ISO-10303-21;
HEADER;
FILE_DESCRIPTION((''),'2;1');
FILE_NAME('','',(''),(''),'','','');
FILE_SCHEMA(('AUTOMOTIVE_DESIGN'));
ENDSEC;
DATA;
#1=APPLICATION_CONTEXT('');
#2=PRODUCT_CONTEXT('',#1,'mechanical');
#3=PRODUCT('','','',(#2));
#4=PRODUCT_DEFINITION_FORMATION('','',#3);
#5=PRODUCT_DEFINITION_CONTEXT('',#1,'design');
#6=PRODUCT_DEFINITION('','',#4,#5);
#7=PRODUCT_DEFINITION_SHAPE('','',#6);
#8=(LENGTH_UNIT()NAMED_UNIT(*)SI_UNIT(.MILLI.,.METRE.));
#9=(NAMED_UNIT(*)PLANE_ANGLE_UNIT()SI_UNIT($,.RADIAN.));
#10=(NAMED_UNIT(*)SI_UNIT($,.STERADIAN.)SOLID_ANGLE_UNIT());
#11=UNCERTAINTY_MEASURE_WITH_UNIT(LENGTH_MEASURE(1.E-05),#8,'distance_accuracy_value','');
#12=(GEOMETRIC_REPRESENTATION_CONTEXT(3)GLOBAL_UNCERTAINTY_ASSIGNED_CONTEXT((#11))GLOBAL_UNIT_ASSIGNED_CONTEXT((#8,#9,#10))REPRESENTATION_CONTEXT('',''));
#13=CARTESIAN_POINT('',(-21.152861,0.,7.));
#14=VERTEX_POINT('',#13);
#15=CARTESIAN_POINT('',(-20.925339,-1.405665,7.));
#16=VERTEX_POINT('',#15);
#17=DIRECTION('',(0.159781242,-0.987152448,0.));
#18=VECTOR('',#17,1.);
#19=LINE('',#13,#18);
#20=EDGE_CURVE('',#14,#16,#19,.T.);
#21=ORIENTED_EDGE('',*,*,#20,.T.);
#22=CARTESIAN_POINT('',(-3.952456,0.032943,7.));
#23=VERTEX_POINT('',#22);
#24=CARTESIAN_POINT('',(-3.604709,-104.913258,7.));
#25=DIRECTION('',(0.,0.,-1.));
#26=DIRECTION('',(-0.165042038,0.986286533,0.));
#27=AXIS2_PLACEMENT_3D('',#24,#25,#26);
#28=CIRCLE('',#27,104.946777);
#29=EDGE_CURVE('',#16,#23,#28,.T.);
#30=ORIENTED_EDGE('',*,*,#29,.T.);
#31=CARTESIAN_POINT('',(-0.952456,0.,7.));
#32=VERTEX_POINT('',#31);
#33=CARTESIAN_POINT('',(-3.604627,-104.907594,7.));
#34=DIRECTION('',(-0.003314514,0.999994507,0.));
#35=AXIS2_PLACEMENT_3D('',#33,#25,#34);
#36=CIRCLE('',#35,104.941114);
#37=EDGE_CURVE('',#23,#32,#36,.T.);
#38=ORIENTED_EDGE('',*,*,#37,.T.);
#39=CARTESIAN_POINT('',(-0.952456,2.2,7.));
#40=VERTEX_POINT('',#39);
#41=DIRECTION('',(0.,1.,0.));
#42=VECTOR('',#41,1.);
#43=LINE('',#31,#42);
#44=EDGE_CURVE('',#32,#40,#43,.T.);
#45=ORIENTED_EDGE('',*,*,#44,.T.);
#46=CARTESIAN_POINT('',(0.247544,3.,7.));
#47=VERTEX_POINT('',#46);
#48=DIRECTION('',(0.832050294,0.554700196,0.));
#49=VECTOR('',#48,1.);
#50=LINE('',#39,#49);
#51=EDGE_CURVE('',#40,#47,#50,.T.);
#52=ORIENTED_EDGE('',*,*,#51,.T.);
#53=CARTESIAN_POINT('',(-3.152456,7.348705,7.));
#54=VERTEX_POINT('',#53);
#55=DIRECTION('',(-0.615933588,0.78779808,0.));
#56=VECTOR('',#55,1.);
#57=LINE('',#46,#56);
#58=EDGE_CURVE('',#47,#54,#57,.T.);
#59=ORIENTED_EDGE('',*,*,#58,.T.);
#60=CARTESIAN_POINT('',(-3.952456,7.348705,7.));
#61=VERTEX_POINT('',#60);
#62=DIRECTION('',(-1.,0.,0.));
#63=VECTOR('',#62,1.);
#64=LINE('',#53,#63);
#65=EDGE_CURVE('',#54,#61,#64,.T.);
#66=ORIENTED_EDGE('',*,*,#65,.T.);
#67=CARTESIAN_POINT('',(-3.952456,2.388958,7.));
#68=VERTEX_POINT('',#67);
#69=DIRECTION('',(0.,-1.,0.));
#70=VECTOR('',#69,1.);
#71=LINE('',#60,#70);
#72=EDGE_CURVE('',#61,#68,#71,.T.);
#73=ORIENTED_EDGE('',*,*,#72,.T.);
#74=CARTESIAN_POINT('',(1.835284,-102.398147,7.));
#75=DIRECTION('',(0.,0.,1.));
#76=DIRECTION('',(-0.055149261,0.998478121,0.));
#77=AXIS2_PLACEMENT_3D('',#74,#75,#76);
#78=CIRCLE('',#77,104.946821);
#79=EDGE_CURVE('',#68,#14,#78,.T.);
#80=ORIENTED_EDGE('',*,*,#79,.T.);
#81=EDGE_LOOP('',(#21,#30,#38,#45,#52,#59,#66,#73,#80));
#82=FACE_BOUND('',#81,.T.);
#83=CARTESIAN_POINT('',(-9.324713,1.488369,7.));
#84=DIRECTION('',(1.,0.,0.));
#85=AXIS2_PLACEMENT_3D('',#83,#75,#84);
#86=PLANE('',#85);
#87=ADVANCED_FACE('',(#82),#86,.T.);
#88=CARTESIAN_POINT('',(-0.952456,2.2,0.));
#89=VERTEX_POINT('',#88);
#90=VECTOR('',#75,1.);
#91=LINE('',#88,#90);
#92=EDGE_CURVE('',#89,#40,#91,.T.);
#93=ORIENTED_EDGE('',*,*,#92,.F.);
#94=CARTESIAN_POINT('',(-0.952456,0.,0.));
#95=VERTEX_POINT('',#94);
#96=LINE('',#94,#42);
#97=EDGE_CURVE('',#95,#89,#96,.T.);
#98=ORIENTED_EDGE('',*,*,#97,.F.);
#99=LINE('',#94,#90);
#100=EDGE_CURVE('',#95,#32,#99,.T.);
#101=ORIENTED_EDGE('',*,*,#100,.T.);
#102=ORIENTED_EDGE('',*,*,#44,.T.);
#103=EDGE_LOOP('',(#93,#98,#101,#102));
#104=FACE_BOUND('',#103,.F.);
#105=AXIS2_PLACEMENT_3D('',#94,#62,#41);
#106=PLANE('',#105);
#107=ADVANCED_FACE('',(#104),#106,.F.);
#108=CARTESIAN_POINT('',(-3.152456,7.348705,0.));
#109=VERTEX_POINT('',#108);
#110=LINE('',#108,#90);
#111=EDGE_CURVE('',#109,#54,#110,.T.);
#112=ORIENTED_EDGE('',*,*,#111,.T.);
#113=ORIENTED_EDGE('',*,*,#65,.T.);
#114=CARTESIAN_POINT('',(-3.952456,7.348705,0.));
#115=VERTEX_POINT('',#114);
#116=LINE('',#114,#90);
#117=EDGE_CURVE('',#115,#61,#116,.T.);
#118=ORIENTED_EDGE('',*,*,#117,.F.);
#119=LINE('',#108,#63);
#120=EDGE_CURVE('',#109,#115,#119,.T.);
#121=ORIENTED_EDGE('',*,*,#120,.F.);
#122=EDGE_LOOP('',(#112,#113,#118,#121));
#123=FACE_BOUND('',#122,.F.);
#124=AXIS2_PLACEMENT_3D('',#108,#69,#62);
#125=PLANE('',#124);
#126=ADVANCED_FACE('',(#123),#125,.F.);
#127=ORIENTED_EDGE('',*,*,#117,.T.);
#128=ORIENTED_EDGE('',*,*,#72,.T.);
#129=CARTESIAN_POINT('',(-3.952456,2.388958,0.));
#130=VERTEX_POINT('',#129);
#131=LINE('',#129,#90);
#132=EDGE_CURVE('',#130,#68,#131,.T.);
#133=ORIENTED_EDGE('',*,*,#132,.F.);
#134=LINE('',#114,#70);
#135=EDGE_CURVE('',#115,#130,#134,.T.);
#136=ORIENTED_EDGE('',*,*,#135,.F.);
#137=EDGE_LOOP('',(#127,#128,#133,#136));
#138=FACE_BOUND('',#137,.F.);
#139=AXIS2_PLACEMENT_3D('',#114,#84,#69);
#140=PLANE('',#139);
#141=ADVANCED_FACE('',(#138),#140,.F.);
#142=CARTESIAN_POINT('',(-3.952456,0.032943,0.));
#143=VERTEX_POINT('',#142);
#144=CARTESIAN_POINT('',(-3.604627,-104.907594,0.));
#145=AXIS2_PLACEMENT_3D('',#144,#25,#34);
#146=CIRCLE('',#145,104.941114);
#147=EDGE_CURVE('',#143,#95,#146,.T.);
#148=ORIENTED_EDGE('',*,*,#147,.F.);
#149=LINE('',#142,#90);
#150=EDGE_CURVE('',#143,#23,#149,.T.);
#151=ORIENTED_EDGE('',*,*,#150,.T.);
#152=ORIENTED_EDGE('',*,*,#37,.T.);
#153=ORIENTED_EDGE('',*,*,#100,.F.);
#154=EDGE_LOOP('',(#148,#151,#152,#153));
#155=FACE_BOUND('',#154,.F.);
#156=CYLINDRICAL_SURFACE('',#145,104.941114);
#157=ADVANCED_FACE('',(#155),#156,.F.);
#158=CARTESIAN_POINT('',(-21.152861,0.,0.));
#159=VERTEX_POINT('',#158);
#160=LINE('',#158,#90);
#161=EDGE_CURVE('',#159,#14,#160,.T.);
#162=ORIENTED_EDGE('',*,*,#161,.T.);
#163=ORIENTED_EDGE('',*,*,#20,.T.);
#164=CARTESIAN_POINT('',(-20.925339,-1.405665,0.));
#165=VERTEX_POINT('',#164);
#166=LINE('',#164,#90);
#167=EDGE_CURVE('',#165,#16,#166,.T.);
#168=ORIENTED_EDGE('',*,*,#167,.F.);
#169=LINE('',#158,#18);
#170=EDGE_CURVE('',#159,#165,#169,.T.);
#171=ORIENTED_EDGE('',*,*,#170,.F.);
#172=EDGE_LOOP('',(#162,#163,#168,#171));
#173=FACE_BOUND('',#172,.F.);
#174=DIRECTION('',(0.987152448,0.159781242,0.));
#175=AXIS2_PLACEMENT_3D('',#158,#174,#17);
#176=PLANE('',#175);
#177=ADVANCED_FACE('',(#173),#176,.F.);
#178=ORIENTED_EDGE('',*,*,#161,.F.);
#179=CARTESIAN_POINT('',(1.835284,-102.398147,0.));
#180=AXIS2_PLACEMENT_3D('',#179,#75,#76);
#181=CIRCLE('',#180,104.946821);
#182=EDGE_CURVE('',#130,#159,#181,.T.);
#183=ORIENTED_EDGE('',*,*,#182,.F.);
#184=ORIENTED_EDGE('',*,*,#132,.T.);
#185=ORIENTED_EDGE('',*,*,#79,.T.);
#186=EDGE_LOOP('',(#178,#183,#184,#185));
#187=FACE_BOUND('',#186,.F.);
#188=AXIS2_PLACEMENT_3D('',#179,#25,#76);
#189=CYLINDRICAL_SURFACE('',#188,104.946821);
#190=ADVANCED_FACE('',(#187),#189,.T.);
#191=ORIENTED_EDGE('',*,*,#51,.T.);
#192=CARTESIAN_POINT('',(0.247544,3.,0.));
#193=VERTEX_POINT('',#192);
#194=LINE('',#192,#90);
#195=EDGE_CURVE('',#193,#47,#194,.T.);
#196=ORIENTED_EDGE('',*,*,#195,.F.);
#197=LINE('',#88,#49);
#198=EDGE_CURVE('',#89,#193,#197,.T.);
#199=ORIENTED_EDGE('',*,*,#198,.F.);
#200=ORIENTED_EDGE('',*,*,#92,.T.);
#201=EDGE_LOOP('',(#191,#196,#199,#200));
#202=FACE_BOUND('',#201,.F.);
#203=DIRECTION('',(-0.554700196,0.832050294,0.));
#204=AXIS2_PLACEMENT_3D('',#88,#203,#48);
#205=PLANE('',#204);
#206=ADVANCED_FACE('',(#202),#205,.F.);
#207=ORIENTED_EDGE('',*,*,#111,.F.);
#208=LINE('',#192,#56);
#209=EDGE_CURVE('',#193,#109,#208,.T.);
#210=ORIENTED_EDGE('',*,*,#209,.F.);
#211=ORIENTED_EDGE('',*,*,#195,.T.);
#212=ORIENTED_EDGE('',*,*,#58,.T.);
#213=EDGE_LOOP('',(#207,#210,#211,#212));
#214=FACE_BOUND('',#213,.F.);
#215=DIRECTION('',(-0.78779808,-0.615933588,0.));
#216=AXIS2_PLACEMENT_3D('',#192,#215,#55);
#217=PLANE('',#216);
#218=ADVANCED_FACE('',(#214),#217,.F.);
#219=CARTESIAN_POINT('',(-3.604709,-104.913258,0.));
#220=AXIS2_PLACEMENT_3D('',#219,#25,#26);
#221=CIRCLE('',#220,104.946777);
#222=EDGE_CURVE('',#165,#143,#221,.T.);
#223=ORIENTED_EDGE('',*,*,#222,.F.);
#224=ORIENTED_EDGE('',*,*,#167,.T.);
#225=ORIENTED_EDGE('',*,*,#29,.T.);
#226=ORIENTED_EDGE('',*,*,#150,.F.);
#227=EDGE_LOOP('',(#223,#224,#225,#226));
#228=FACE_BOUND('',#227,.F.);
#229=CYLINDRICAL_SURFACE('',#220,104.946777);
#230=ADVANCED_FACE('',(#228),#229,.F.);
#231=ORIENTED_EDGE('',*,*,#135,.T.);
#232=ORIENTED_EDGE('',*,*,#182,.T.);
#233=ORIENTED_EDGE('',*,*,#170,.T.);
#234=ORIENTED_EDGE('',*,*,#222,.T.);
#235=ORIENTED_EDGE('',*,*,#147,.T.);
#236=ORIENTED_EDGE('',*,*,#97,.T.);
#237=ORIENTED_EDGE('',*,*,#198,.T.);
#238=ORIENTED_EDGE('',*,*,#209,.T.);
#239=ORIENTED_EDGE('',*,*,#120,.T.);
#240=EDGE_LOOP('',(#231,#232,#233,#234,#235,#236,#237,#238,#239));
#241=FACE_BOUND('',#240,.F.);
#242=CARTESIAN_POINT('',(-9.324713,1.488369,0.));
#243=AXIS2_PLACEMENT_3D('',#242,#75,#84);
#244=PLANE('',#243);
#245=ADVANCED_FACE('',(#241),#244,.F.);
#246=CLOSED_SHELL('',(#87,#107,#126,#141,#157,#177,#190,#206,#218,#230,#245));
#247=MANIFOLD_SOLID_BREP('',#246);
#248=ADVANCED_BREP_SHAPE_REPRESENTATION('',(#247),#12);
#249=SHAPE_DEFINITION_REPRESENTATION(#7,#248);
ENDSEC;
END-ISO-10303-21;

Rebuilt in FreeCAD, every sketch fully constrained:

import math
import FreeCAD as App
import Part
import Sketcher

V = App.Vector

doc = App.newDocument("Part")
body = doc.addObject("PartDesign::Body", "Body")

sketch1 = body.newObject("Sketcher::SketchObject", "Sketch")
sketch1.AttachmentSupport = (doc.getObject("XY_Plane"), [""])
sketch1.MapMode = "FlatFace"
sketch1.addGeometry([
    Part.ArcOfCircle(Part.Circle(V(-3.604627, -104.907594, 0), V(0, 0, 1), 104.941114), math.radians(88.551813), math.radians(90.189908)),
    Part.LineSegment(V(-0.952456, 0, 0), V(-0.952456, 2.2, 0)),
    Part.LineSegment(V(-0.952456, 2.2, 0), V(0.247544, 3, 0)),
    Part.LineSegment(V(0.247544, 3, 0), V(-3.152456, 7.348705, 0)),
    Part.LineSegment(V(-3.152456, 7.348705, 0), V(-3.952456, 7.348705, 0)),
    Part.LineSegment(V(-3.952456, 7.348705, 0), V(-3.952456, 2.388958, 0)),
    Part.ArcOfCircle(Part.Circle(V(1.835284, -102.398147, 0), V(0, 0, 1), 104.946821), math.radians(93.161424), math.radians(102.652986)),
    Part.LineSegment(V(-21.152861, 0, 0), V(-20.925339, -1.405665, 0)),
    Part.ArcOfCircle(Part.Circle(V(-3.604709, -104.913258, 0), V(0, 0, 1), 104.946777), math.radians(90.189853), math.radians(99.499677)),
], False)
sketch1.addConstraint([
    Sketcher.Constraint("Coincident", 0, 1, 1, 1),
    Sketcher.Constraint("Coincident", 1, 2, 2, 1),
    Sketcher.Constraint("Coincident", 2, 2, 3, 1),
    Sketcher.Constraint("Coincident", 3, 2, 4, 1),
    Sketcher.Constraint("Coincident", 4, 2, 5, 1),
    Sketcher.Constraint("Coincident", 5, 2, 6, 1),
    Sketcher.Constraint("Coincident", 6, 2, 7, 1),
    Sketcher.Constraint("Coincident", 7, 2, 8, 2),
    Sketcher.Constraint("Coincident", 8, 1, 0, 2),
    Sketcher.Constraint("Vertical", 1),
    Sketcher.Constraint("Horizontal", 4),
    Sketcher.Constraint("Vertical", 5),
    Sketcher.Constraint("PointOnObject", 0, 1, -1),
    Sketcher.Constraint("PointOnObject", 6, 2, -1),
    Sketcher.Constraint("DistanceX", 4, 2, 4, 1, 0.8),
    Sketcher.Constraint("DistanceY", 1, 1, 1, 2, 2.2),
    Sketcher.Constraint("DistanceY", -1, 1, 2, 2, 3.0),
    Sketcher.Constraint("DistanceX", 4, 2, 1, 2, 3.0),
    Sketcher.Constraint("DistanceX", 8, 1, 0, 1, 3.0),
    Sketcher.Constraint("DistanceX", 1, 2, 2, 2, 1.2),
    Sketcher.Constraint("Radius", 6, 104.946821),
    Sketcher.Constraint("Radius", 0, 104.941114),
    Sketcher.Constraint("Radius", 8, 104.946777),
    Sketcher.Constraint("DistanceY", 0, 3, 3, 2, 112.256299),
    Sketcher.Constraint("Distance", 7, 1.423959),
    Sketcher.Constraint("DistanceY", 5, 2, 5, 1, 4.959747),
    Sketcher.Constraint("DistanceX", 8, 3, -1, 1, 3.604709),
    Sketcher.Constraint("DistanceY", 8, 3, -1, 1, 104.913258),
    Sketcher.Constraint("DistanceX", 7, 2, -1, 1, 20.925339),
    Sketcher.Constraint("DistanceX", 0, 3, 6, 3, 5.439911),
])
pad1 = body.newObject("PartDesign::Pad", "Pad")
pad1.Profile = sketch1
pad1.Length = 7

doc.recompute()
